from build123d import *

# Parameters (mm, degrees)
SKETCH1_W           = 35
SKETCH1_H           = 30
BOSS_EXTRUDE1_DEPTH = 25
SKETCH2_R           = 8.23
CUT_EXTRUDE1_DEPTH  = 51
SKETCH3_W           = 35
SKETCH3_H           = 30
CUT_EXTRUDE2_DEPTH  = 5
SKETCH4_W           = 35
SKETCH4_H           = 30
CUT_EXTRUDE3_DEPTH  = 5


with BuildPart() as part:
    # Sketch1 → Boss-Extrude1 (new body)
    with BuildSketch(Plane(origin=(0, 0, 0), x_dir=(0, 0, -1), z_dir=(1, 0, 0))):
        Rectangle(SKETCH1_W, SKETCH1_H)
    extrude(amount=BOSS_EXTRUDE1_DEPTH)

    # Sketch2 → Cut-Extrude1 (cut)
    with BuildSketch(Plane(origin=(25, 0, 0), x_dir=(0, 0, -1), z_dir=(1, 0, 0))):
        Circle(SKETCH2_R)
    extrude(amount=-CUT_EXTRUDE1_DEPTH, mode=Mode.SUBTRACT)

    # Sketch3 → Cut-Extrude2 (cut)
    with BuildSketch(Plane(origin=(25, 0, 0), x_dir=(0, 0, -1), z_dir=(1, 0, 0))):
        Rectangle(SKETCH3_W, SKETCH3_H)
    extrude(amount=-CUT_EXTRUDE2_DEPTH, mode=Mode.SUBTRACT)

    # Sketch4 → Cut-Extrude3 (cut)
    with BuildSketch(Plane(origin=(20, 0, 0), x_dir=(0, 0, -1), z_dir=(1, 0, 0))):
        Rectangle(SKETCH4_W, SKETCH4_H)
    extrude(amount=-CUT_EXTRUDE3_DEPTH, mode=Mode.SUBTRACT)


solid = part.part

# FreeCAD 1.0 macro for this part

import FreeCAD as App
import Part
import Sketcher
Q = App.Units.Quantity


def add_polygon(sketch, points):
    """Adds a closed chain of lines whose ends are joined by coincident constraints."""
    first, n = sketch.GeometryCount, len(points)
    for a, b in zip(points, points[1:] + points[:1]):
        sketch.addGeometry(Part.LineSegment(App.Vector(*a, 0), App.Vector(*b, 0)), False)
    for i in range(n):
        sketch.addConstraint(Sketcher.Constraint("Coincident", first + i, 2, first + (i + 1) % n, 1))

doc = App.newDocument("Part")
params = doc.addObject("Spreadsheet::Sheet", "Params")
for row, (alias, value) in enumerate([
    ("sketch1_width", "30 mm"),
    ("sketch1_height", "35 mm"),
    ("pad1_length", "25 mm"),
    ("sketch2_diameter", "16.46 mm"),
    ("pocket1_length", "51 mm"),
    ("sketch3_width", "30 mm"),
    ("sketch3_height", "35 mm"),
    ("pocket2_length", "5 mm"),
    ("sketch4_width", "30 mm"),
    ("sketch4_height", "35 mm"),
    ("pocket3_length", "5 mm"),
], start=1):
    params.set(f"A{row}", alias)
    params.set(f"B{row}", "=" + value)
    params.setAlias(f"B{row}", alias)

body = doc.addObject("PartDesign::Body", "Body")

# Sketch on YZ plane
sketch1 = doc.addObject("Sketcher::SketchObject", "Sketch")
body.addObject(sketch1)
sketch1.AttachmentSupport = (doc.YZ_Plane, [""])
sketch1.MapMode = "FlatFace"
add_polygon(sketch1, [(15, 18), (-15, 18), (-15, -18), (15, -18)])  # lines 0-3
sketch1.addConstraint([
    Sketcher.Constraint("Horizontal", 0),
    Sketcher.Constraint("Vertical", 1),
    Sketcher.Constraint("Horizontal", 2),
    Sketcher.Constraint("Vertical", 3),
    Sketcher.Constraint("Symmetric", 0, 2, 2, 2, -1, 1),
    Sketcher.Constraint("DistanceX", 0, 2, 0, 1, Q("30 mm")),
    Sketcher.Constraint("DistanceY", 1, 2, 1, 1, Q("35 mm")),
])
sketch1.setExpression("Constraints[9]", "Params.sketch1_width")
sketch1.setExpression("Constraints[10]", "Params.sketch1_height")
pad1 = doc.addObject("PartDesign::Pad", "Pad")
body.addObject(pad1)
pad1.Profile = sketch1
pad1.setExpression("Length", "Params.pad1_length")

# Sketch on YZ plane
sketch2 = doc.addObject("Sketcher::SketchObject", "Sketch001")
body.addObject(sketch2)
sketch2.AttachmentSupport = (doc.YZ_Plane, [""])
sketch2.MapMode = "FlatFace"
sketch2.AttachmentOffset = App.Placement(App.Vector(0, 0, 25), App.Rotation())
sketch2.addGeometry(Part.Circle(App.Vector(0, 0, 0), App.Vector(0, 0, 1), 8), False)
sketch2.addConstraint([
    Sketcher.Constraint("Coincident", 0, 3, -1, 1),
    Sketcher.Constraint("Diameter", 0, Q("16.46 mm")),
])
sketch2.setExpression("Constraints[1]", "Params.sketch2_diameter")
pocket1 = doc.addObject("PartDesign::Pocket", "Pocket")
body.addObject(pocket1)
pocket1.Profile = sketch2
pocket1.setExpression("Length", "Params.pocket1_length")

# Sketch on YZ plane
sketch3 = doc.addObject("Sketcher::SketchObject", "Sketch002")
body.addObject(sketch3)
sketch3.AttachmentSupport = (doc.YZ_Plane, [""])
sketch3.MapMode = "FlatFace"
sketch3.AttachmentOffset = App.Placement(App.Vector(0, 0, 25), App.Rotation())
add_polygon(sketch3, [(15, 18), (-15, 18), (-15, -18), (15, -18)])  # lines 0-3
sketch3.addConstraint([
    Sketcher.Constraint("Horizontal", 0),
    Sketcher.Constraint("Vertical", 1),
    Sketcher.Constraint("Horizontal", 2),
    Sketcher.Constraint("Vertical", 3),
    Sketcher.Constraint("Symmetric", 0, 2, 2, 2, -1, 1),
    Sketcher.Constraint("DistanceX", 0, 2, 0, 1, Q("30 mm")),
    Sketcher.Constraint("DistanceY", 1, 2, 1, 1, Q("35 mm")),
])
sketch3.setExpression("Constraints[9]", "Params.sketch3_width")
sketch3.setExpression("Constraints[10]", "Params.sketch3_height")
pocket2 = doc.addObject("PartDesign::Pocket", "Pocket001")
body.addObject(pocket2)
pocket2.Profile = sketch3
pocket2.setExpression("Length", "Params.pocket2_length")

# Sketch on YZ plane
sketch4 = doc.addObject("Sketcher::SketchObject", "Sketch003")
body.addObject(sketch4)
sketch4.AttachmentSupport = (doc.YZ_Plane, [""])
sketch4.MapMode = "FlatFace"
sketch4.AttachmentOffset = App.Placement(App.Vector(0, 0, 20), App.Rotation())
add_polygon(sketch4, [(15, 18), (-15, 18), (-15, -18), (15, -18)])  # lines 0-3
sketch4.addConstraint([
    Sketcher.Constraint("Horizontal", 0),
    Sketcher.Constraint("Vertical", 1),
    Sketcher.Constraint("Horizontal", 2),
    Sketcher.Constraint("Vertical", 3),
    Sketcher.Constraint("Symmetric", 0, 2, 2, 2, -1, 1),
    Sketcher.Constraint("DistanceX", 0, 2, 0, 1, Q("30 mm")),
    Sketcher.Constraint("DistanceY", 1, 2, 1, 1, Q("35 mm")),
])
sketch4.setExpression("Constraints[9]", "Params.sketch4_width")
sketch4.setExpression("Constraints[10]", "Params.sketch4_height")
pocket3 = doc.addObject("PartDesign::Pocket", "Pocket002")
body.addObject(pocket3)
pocket3.Profile = sketch4
pocket3.setExpression("Length", "Params.pocket3_length")

doc.recompute()
